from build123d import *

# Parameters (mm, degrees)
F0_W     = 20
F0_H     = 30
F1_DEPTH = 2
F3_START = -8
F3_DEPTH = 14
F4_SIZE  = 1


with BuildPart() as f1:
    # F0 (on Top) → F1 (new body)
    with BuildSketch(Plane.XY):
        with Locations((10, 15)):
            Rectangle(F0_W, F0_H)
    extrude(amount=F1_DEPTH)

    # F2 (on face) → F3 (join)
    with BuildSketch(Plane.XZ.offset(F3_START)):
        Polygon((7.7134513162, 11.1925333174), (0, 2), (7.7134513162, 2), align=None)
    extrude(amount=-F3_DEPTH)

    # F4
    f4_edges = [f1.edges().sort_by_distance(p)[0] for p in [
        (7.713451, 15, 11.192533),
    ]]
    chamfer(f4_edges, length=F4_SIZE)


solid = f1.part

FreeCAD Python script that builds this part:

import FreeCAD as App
import Part
import Sketcher

V = App.Vector
Q = App.Units.Quantity


def edges_at(feature, points):
    """Names of the edges that pass closest to the given points."""
    edges = feature.Shape.Edges
    near = lambda p: min(range(len(edges)), key=lambda i: edges[i].distToShape(Part.Vertex(*p))[0])
    return sorted({f"Edge{near(p) + 1}" for p in points})


def add_polygon(sketch, points):
    """Adds a closed chain of lines whose ends are joined by coincident constraints."""
    first, n = sketch.GeometryCount, len(points)
    for a, b in zip(points, points[1:] + points[:1]):
        sketch.addGeometry(Part.LineSegment(App.Vector(*a, 0), App.Vector(*b, 0)), False)
    for i in range(n):
        sketch.addConstraint(Sketcher.Constraint("Coincident", first + i, 2, first + (i + 1) % n, 1))

doc = App.newDocument("Part")
body = doc.addObject("PartDesign::Body", "Body")

# Sketch on XY plane
sketch1 = body.newObject("Sketcher::SketchObject", "Sketch")
sketch1.AttachmentSupport = (doc.getObject("XY_Plane"), [""])
sketch1.MapMode = "FlatFace"
add_polygon(sketch1, [(0, 30), (0, 0), (20, 0), (20, 30)])  # lines 0-3
sketch1.addConstraint([
    Sketcher.Constraint("Vertical", 0),
    Sketcher.Constraint("Horizontal", 1),
    Sketcher.Constraint("Vertical", 2),
    Sketcher.Constraint("Horizontal", 3),
    Sketcher.Constraint("Coincident", 0, 2, -1, 1),
    Sketcher.Constraint("DistanceX", 1, 1, 1, 2, Q("20 mm")),
    Sketcher.Constraint("DistanceY", 0, 2, 0, 1, Q("30 mm")),
])
pad1 = body.newObject("PartDesign::Pad", "Pad")
pad1.Profile = sketch1
pad1.Length = 2

# Sketch on XZ plane
sketch2 = body.newObject("Sketcher::SketchObject", "Sketch001")
sketch2.AttachmentSupport = (doc.getObject("XZ_Plane"), [""])
sketch2.MapMode = "FlatFace"
sketch2.AttachmentOffset = App.Placement(V(0, 0, -8), App.Rotation())
add_polygon(sketch2, [(8, 11), (0, 2), (8, 2)])  # lines 0-2
sketch2.addConstraint([
    Sketcher.Constraint("Horizontal", 1),
    Sketcher.Constraint("Vertical", 2),
    Sketcher.Constraint("PointOnObject", 0, 2, -2),
    Sketcher.Constraint("Angle", 0, Q("-130 deg")),
    Sketcher.Constraint("Distance", 0, Q("12 mm")),
    Sketcher.Constraint("DistanceY", -1, 1, 0, 2, Q("2 mm")),
])
pad2 = body.newObject("PartDesign::Pad", "Pad001")
pad2.Profile = sketch2
pad2.Length = 14
pad2.Reversed = True
doc.recompute()

chamfer = body.newObject("PartDesign::Chamfer", "Chamfer")
chamfer.Base = (pad2, edges_at(pad2, [(7.713, 15, 11.193)]))
chamfer.Size = 1

doc.recompute()
